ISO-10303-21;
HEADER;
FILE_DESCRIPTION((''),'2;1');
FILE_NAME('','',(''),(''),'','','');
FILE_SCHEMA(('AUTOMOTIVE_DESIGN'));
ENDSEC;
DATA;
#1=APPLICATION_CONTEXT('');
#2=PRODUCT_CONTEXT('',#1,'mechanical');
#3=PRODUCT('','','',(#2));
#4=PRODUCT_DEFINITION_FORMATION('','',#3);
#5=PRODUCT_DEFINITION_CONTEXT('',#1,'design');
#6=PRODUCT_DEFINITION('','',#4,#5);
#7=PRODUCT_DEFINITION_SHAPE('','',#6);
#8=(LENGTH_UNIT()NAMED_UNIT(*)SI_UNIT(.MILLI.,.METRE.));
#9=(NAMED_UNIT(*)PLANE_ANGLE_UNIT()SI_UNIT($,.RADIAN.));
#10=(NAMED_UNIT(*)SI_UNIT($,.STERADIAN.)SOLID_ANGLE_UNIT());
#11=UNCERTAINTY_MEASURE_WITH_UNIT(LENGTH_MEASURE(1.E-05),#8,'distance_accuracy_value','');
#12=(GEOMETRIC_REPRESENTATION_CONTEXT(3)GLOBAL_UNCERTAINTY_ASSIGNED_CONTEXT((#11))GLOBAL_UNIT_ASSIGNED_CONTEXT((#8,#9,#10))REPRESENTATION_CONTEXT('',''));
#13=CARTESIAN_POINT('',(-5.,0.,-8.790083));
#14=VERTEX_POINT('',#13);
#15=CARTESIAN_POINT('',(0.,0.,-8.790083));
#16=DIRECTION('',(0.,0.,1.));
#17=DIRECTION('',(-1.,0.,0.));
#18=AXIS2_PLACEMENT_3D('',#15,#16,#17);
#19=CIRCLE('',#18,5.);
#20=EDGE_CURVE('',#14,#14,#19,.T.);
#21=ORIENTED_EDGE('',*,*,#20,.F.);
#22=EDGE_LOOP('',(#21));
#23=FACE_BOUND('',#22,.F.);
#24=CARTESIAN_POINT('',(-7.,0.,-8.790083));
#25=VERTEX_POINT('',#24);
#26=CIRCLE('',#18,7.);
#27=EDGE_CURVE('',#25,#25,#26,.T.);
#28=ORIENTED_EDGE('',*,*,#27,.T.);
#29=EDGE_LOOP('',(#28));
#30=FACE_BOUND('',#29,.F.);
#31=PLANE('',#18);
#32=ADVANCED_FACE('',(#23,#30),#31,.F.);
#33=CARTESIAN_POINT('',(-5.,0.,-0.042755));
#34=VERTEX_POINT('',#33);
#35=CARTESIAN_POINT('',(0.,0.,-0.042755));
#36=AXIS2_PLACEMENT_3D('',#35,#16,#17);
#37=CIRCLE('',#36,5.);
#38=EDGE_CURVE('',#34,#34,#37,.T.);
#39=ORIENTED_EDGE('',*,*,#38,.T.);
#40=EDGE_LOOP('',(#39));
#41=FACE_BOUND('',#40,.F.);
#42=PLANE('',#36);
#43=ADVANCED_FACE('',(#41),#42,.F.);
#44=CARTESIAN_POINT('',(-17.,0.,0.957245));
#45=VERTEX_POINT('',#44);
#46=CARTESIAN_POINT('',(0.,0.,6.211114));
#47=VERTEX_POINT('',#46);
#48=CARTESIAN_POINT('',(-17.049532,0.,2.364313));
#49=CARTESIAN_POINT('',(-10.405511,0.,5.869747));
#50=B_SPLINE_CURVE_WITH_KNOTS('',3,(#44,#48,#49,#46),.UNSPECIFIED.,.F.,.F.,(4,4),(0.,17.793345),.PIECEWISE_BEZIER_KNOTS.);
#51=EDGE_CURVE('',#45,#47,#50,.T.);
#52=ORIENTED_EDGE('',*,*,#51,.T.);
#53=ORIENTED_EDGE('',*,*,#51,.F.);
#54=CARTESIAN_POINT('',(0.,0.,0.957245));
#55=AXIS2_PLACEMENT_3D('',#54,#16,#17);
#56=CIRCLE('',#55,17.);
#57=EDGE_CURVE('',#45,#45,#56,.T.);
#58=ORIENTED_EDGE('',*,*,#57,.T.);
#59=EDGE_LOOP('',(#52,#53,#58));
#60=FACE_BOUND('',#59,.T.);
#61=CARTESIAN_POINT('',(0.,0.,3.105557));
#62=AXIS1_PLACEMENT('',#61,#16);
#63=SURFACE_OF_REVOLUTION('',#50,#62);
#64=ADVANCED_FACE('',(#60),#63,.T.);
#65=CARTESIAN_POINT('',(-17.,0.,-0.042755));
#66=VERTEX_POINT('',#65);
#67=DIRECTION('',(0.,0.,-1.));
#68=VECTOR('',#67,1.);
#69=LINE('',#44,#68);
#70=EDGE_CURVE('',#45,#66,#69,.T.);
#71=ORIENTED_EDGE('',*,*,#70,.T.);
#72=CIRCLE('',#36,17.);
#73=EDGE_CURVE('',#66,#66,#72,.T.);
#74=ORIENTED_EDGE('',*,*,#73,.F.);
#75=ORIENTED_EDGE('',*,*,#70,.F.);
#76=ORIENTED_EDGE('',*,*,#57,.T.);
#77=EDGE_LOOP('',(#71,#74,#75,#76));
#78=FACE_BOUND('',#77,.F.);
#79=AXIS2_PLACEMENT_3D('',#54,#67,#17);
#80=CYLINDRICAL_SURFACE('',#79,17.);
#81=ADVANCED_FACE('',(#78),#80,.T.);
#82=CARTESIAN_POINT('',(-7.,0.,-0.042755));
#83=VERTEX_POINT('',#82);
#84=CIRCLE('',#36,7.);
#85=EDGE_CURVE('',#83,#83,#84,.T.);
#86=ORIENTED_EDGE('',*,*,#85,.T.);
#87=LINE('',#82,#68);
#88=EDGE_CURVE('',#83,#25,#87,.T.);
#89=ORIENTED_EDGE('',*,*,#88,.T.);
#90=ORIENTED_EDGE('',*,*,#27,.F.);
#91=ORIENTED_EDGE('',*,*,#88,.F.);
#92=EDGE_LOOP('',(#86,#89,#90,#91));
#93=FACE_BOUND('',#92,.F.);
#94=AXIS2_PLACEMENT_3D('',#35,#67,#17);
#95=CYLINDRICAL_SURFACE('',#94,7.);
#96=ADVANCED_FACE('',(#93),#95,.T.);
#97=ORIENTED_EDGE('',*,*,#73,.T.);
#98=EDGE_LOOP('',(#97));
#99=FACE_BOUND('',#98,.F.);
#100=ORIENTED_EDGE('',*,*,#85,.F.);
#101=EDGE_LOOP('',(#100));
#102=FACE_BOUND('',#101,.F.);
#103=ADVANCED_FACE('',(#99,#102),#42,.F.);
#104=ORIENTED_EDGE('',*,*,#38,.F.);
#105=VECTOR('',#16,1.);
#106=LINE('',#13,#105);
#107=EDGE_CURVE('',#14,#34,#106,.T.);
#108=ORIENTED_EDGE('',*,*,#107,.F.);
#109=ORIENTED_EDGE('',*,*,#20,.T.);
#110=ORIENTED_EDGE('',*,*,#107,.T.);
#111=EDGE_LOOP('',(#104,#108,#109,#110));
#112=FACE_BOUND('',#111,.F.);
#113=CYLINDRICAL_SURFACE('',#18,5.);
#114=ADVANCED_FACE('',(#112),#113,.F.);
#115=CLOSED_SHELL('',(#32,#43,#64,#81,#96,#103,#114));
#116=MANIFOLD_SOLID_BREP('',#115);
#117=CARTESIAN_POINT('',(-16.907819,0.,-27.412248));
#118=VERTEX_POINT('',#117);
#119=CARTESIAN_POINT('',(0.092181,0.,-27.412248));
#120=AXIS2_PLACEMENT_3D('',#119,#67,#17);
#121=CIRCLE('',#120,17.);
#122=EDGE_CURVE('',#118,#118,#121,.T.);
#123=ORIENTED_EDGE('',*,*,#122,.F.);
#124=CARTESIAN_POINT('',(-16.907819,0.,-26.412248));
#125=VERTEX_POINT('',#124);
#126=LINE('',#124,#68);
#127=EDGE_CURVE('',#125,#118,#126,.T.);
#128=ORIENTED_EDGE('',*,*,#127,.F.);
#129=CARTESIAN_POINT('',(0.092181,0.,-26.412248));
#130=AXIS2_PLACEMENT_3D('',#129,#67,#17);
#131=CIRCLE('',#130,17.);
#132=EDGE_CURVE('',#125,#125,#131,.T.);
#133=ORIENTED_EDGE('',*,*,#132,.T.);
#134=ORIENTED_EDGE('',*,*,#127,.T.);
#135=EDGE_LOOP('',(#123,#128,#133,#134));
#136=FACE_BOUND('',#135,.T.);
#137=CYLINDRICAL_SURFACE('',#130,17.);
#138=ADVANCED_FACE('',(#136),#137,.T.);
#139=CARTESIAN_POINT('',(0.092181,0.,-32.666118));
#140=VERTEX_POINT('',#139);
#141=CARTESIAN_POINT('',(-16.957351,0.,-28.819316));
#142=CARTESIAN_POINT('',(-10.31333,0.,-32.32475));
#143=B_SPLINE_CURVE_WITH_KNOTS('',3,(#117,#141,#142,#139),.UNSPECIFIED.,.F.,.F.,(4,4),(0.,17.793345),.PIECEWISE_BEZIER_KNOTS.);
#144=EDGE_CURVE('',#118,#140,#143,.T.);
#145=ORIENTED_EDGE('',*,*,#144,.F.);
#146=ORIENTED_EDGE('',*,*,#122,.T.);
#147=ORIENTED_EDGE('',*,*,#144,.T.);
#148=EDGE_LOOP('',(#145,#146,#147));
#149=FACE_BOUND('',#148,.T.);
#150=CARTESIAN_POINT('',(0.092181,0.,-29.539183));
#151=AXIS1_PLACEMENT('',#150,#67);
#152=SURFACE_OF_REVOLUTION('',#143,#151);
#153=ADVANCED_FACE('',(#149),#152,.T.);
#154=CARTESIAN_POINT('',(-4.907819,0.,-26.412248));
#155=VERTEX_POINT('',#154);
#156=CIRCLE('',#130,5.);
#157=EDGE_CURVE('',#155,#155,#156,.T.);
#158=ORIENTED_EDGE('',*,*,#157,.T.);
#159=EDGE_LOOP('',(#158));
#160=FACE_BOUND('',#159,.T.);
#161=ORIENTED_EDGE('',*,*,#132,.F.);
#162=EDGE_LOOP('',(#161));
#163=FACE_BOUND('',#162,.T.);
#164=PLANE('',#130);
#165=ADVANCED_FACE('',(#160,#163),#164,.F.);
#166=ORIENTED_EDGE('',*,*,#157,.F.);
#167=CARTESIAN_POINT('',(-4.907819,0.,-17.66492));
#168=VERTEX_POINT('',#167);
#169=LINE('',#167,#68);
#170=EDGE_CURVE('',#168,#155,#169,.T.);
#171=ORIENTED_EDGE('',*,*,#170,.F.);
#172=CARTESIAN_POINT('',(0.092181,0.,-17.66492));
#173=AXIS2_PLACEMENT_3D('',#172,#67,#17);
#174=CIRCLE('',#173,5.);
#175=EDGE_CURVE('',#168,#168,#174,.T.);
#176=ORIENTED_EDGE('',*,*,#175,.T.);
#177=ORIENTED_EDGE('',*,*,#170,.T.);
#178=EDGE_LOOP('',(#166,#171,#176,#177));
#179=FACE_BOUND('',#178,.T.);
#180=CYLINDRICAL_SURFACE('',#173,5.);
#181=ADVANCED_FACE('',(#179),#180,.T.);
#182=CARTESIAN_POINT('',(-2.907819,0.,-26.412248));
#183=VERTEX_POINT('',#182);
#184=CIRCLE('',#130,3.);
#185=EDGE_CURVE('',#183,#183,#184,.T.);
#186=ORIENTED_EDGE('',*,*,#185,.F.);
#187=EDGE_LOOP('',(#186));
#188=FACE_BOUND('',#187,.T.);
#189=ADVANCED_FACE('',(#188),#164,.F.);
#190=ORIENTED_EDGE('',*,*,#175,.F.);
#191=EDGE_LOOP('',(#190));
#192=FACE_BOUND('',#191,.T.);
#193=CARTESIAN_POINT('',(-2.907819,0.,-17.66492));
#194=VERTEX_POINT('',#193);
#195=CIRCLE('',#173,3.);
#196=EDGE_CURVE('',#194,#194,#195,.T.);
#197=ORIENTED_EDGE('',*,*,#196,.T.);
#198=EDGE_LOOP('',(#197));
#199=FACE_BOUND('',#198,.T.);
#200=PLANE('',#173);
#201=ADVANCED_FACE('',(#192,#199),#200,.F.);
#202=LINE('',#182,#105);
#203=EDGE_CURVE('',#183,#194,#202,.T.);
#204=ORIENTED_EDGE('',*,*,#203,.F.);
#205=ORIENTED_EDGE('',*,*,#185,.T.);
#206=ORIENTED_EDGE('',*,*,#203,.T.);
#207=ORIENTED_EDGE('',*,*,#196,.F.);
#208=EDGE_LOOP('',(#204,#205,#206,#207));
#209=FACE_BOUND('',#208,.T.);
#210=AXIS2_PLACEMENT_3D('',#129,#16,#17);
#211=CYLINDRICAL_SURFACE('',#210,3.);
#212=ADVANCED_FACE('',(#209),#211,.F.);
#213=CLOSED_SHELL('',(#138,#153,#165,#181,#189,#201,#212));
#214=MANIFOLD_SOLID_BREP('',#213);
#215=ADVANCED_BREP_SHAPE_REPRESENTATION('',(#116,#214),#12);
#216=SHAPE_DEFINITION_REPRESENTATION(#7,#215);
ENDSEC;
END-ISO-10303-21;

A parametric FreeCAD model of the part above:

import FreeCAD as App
import Part
import Sketcher

V = App.Vector
Q = App.Units.Quantity

doc = App.newDocument("Part")
body = doc.addObject("PartDesign::Body", "Body")

# Sketch on XZ plane
sketch1 = doc.addObject("Sketcher::SketchObject", "Sketch")
body.addObject(sketch1)
sketch1.AttachmentSupport = (doc.XZ_Plane, [""])
sketch1.MapMode = "FlatFace"
sketch1.addGeometry([
    Part.LineSegment(V(0, -0.042755, 0), V(0, 6.211114, 0)),  # 0
    Part.BSplineCurve([V(-17, 0.957245, 0), V(-17.049532, 2.364313, 0), V(-10.405511, 5.869747, 0), V(0, 6.211114, 0)], [4, 4], [0, 17.793345], False, 3, [1, 1, 1, 1], False),  # 1
    Part.LineSegment(V(-17, 0.957245, 0), V(-17, -0.042755, 0)),  # 2
    Part.LineSegment(V(-17, -0.042755, 0), V(-7, -0.042755, 0)),  # 3
    Part.LineSegment(V(-7, -0.042755, 0), V(-7, -8.790083, 0)),  # 4
    Part.LineSegment(V(-7, -8.790083, 0), V(-5, -8.790083, 0)),  # 5
    Part.LineSegment(V(-5, -8.790083, 0), V(-5, -0.042755, 0)),  # 6
    Part.LineSegment(V(-5, -0.042755, 0), V(0, -0.042755, 0)),  # 7
], False)
sketch1.addConstraint([
    Sketcher.Constraint("Block", 1),
    Sketcher.Constraint("Coincident", 0, 2, 1, 2),
    Sketcher.Constraint("Coincident", 1, 1, 2, 1),
    Sketcher.Constraint("Coincident", 2, 2, 3, 1),
    Sketcher.Constraint("Coincident", 3, 2, 4, 1),
    Sketcher.Constraint("Coincident", 4, 2, 5, 1),
    Sketcher.Constraint("Coincident", 5, 2, 6, 1),
    Sketcher.Constraint("Coincident", 6, 2, 7, 1),
    Sketcher.Constraint("Coincident", 7, 2, 0, 1),
    Sketcher.Constraint("Vertical", 0),
    Sketcher.Constraint("Vertical", 2),
    Sketcher.Constraint("Horizontal", 3),
    Sketcher.Constraint("Vertical", 4),
    Sketcher.Constraint("Horizontal", 5),
    Sketcher.Constraint("Vertical", 6),
    Sketcher.Constraint("Horizontal", 7),
    Sketcher.Constraint("Horizontal", 3, 2, 6, 2),
    Sketcher.Constraint("DistanceX", 3, 1, 3, 2, Q("10 mm")),
    Sketcher.Constraint("DistanceX", 5, 1, 5, 2, Q("2 mm")),
    Sketcher.Constraint("DistanceY", 2, 2, 2, 1, Q("1 mm")),
    Sketcher.Constraint("DistanceY", 4, 2, 4, 1, Q("8.747328 mm")),
])
revolution = doc.addObject("PartDesign::Revolution", "Revolution")
body.addObject(revolution)
revolution.Profile = sketch1
revolution.ReferenceAxis = (sketch1, ["V_Axis"])
revolution.Angle = 360
body2 = doc.addObject("PartDesign::Body", "Body001")

# Sketch on XZ plane
sketch2 = doc.addObject("Sketcher::SketchObject", "Sketch001")
body2.addObject(sketch2)
sketch2.AttachmentSupport = (doc.getObject("XZ_Plane001"), [""])
sketch2.MapMode = "FlatFace"
sketch2.addGeometry([
    Part.LineSegment(V(-2.907819, -17.66492, 0), V(-4.907819, -17.66492, 0)),  # 0
    Part.LineSegment(V(-4.907819, -17.66492, 0), V(-4.907819, -26.412248, 0)),  # 1
    Part.LineSegment(V(-4.907819, -26.412248, 0), V(-16.907819, -26.412248, 0)),  # 2
    Part.LineSegment(V(-16.907819, -26.412248, 0), V(-16.907819, -27.412248, 0)),  # 3
    Part.BSplineCurve([V(-16.907819, -27.412248, 0), V(-16.957351, -28.819316, 0), V(-10.31333, -32.32475, 0), V(0.092181, -32.666118, 0)], [4, 4], [0, 17.793345], False, 3, [1, 1, 1, 1], False),  # 4
    Part.LineSegment(V(0.092181, -32.666118, 0), V(0.092181, -26.412248, 0)),  # 5
    Part.LineSegment(V(0.092181, -26.412248, 0), V(-2.907819, -26.412248, 0)),  # 6
    Part.LineSegment(V(-2.907819, -26.412248, 0), V(-2.907819, -17.66492, 0)),  # 7
], False)
sketch2.addGeometry(Part.LineSegment(V(0.092181, -17.66492, 0), V(0.092181, -32.666118, 0)), True)  # axis
sketch2.addConstraint([
    Sketcher.Constraint("Block", 4),
    Sketcher.Constraint("Coincident", 0, 2, 1, 1),
    Sketcher.Constraint("Coincident", 1, 2, 2, 1),
    Sketcher.Constraint("Coincident", 2, 2, 3, 1),
    Sketcher.Constraint("Coincident", 3, 2, 4, 1),
    Sketcher.Constraint("Coincident", 4, 2, 5, 1),
    Sketcher.Constraint("Coincident", 5, 2, 6, 1),
    Sketcher.Constraint("Coincident", 6, 2, 7, 1),
    Sketcher.Constraint("Coincident", 7, 2, 0, 1),
    Sketcher.Constraint("Horizontal", 0),
    Sketcher.Constraint("Vertical", 1),
    Sketcher.Constraint("Horizontal", 2),
    Sketcher.Constraint("Vertical", 3),
    Sketcher.Constraint("Vertical", 5),
    Sketcher.Constraint("Horizontal", 6),
    Sketcher.Constraint("Vertical", 7),
    Sketcher.Constraint("Vertical", 8),
    Sketcher.Constraint("Horizontal", 2, 2, 5, 2),
    Sketcher.Constraint("Horizontal", 7, 2, 8, 1),
    Sketcher.Constraint("Vertical", 5, 2, 8, 1),
    Sketcher.Constraint("DistanceX", 0, 2, 0, 1, Q("2 mm")),
    Sketcher.Constraint("DistanceX", 2, 2, 2, 1, Q("12 mm")),
    Sketcher.Constraint("DistanceY", 3, 2, 3, 1, Q("1 mm")),
    Sketcher.Constraint("DistanceY", 1, 2, 1, 1, Q("8.747328 mm")),
    Sketcher.Constraint("DistanceY", 8, 2, 8, 1, Q("15.001198 mm")),
])
revolution2 = doc.addObject("PartDesign::Revolution", "Revolution001")
body2.addObject(revolution2)
revolution2.Profile = sketch2
revolution2.ReferenceAxis = (sketch2, ["Axis0"])
revolution2.Angle = 360

doc.recompute()
